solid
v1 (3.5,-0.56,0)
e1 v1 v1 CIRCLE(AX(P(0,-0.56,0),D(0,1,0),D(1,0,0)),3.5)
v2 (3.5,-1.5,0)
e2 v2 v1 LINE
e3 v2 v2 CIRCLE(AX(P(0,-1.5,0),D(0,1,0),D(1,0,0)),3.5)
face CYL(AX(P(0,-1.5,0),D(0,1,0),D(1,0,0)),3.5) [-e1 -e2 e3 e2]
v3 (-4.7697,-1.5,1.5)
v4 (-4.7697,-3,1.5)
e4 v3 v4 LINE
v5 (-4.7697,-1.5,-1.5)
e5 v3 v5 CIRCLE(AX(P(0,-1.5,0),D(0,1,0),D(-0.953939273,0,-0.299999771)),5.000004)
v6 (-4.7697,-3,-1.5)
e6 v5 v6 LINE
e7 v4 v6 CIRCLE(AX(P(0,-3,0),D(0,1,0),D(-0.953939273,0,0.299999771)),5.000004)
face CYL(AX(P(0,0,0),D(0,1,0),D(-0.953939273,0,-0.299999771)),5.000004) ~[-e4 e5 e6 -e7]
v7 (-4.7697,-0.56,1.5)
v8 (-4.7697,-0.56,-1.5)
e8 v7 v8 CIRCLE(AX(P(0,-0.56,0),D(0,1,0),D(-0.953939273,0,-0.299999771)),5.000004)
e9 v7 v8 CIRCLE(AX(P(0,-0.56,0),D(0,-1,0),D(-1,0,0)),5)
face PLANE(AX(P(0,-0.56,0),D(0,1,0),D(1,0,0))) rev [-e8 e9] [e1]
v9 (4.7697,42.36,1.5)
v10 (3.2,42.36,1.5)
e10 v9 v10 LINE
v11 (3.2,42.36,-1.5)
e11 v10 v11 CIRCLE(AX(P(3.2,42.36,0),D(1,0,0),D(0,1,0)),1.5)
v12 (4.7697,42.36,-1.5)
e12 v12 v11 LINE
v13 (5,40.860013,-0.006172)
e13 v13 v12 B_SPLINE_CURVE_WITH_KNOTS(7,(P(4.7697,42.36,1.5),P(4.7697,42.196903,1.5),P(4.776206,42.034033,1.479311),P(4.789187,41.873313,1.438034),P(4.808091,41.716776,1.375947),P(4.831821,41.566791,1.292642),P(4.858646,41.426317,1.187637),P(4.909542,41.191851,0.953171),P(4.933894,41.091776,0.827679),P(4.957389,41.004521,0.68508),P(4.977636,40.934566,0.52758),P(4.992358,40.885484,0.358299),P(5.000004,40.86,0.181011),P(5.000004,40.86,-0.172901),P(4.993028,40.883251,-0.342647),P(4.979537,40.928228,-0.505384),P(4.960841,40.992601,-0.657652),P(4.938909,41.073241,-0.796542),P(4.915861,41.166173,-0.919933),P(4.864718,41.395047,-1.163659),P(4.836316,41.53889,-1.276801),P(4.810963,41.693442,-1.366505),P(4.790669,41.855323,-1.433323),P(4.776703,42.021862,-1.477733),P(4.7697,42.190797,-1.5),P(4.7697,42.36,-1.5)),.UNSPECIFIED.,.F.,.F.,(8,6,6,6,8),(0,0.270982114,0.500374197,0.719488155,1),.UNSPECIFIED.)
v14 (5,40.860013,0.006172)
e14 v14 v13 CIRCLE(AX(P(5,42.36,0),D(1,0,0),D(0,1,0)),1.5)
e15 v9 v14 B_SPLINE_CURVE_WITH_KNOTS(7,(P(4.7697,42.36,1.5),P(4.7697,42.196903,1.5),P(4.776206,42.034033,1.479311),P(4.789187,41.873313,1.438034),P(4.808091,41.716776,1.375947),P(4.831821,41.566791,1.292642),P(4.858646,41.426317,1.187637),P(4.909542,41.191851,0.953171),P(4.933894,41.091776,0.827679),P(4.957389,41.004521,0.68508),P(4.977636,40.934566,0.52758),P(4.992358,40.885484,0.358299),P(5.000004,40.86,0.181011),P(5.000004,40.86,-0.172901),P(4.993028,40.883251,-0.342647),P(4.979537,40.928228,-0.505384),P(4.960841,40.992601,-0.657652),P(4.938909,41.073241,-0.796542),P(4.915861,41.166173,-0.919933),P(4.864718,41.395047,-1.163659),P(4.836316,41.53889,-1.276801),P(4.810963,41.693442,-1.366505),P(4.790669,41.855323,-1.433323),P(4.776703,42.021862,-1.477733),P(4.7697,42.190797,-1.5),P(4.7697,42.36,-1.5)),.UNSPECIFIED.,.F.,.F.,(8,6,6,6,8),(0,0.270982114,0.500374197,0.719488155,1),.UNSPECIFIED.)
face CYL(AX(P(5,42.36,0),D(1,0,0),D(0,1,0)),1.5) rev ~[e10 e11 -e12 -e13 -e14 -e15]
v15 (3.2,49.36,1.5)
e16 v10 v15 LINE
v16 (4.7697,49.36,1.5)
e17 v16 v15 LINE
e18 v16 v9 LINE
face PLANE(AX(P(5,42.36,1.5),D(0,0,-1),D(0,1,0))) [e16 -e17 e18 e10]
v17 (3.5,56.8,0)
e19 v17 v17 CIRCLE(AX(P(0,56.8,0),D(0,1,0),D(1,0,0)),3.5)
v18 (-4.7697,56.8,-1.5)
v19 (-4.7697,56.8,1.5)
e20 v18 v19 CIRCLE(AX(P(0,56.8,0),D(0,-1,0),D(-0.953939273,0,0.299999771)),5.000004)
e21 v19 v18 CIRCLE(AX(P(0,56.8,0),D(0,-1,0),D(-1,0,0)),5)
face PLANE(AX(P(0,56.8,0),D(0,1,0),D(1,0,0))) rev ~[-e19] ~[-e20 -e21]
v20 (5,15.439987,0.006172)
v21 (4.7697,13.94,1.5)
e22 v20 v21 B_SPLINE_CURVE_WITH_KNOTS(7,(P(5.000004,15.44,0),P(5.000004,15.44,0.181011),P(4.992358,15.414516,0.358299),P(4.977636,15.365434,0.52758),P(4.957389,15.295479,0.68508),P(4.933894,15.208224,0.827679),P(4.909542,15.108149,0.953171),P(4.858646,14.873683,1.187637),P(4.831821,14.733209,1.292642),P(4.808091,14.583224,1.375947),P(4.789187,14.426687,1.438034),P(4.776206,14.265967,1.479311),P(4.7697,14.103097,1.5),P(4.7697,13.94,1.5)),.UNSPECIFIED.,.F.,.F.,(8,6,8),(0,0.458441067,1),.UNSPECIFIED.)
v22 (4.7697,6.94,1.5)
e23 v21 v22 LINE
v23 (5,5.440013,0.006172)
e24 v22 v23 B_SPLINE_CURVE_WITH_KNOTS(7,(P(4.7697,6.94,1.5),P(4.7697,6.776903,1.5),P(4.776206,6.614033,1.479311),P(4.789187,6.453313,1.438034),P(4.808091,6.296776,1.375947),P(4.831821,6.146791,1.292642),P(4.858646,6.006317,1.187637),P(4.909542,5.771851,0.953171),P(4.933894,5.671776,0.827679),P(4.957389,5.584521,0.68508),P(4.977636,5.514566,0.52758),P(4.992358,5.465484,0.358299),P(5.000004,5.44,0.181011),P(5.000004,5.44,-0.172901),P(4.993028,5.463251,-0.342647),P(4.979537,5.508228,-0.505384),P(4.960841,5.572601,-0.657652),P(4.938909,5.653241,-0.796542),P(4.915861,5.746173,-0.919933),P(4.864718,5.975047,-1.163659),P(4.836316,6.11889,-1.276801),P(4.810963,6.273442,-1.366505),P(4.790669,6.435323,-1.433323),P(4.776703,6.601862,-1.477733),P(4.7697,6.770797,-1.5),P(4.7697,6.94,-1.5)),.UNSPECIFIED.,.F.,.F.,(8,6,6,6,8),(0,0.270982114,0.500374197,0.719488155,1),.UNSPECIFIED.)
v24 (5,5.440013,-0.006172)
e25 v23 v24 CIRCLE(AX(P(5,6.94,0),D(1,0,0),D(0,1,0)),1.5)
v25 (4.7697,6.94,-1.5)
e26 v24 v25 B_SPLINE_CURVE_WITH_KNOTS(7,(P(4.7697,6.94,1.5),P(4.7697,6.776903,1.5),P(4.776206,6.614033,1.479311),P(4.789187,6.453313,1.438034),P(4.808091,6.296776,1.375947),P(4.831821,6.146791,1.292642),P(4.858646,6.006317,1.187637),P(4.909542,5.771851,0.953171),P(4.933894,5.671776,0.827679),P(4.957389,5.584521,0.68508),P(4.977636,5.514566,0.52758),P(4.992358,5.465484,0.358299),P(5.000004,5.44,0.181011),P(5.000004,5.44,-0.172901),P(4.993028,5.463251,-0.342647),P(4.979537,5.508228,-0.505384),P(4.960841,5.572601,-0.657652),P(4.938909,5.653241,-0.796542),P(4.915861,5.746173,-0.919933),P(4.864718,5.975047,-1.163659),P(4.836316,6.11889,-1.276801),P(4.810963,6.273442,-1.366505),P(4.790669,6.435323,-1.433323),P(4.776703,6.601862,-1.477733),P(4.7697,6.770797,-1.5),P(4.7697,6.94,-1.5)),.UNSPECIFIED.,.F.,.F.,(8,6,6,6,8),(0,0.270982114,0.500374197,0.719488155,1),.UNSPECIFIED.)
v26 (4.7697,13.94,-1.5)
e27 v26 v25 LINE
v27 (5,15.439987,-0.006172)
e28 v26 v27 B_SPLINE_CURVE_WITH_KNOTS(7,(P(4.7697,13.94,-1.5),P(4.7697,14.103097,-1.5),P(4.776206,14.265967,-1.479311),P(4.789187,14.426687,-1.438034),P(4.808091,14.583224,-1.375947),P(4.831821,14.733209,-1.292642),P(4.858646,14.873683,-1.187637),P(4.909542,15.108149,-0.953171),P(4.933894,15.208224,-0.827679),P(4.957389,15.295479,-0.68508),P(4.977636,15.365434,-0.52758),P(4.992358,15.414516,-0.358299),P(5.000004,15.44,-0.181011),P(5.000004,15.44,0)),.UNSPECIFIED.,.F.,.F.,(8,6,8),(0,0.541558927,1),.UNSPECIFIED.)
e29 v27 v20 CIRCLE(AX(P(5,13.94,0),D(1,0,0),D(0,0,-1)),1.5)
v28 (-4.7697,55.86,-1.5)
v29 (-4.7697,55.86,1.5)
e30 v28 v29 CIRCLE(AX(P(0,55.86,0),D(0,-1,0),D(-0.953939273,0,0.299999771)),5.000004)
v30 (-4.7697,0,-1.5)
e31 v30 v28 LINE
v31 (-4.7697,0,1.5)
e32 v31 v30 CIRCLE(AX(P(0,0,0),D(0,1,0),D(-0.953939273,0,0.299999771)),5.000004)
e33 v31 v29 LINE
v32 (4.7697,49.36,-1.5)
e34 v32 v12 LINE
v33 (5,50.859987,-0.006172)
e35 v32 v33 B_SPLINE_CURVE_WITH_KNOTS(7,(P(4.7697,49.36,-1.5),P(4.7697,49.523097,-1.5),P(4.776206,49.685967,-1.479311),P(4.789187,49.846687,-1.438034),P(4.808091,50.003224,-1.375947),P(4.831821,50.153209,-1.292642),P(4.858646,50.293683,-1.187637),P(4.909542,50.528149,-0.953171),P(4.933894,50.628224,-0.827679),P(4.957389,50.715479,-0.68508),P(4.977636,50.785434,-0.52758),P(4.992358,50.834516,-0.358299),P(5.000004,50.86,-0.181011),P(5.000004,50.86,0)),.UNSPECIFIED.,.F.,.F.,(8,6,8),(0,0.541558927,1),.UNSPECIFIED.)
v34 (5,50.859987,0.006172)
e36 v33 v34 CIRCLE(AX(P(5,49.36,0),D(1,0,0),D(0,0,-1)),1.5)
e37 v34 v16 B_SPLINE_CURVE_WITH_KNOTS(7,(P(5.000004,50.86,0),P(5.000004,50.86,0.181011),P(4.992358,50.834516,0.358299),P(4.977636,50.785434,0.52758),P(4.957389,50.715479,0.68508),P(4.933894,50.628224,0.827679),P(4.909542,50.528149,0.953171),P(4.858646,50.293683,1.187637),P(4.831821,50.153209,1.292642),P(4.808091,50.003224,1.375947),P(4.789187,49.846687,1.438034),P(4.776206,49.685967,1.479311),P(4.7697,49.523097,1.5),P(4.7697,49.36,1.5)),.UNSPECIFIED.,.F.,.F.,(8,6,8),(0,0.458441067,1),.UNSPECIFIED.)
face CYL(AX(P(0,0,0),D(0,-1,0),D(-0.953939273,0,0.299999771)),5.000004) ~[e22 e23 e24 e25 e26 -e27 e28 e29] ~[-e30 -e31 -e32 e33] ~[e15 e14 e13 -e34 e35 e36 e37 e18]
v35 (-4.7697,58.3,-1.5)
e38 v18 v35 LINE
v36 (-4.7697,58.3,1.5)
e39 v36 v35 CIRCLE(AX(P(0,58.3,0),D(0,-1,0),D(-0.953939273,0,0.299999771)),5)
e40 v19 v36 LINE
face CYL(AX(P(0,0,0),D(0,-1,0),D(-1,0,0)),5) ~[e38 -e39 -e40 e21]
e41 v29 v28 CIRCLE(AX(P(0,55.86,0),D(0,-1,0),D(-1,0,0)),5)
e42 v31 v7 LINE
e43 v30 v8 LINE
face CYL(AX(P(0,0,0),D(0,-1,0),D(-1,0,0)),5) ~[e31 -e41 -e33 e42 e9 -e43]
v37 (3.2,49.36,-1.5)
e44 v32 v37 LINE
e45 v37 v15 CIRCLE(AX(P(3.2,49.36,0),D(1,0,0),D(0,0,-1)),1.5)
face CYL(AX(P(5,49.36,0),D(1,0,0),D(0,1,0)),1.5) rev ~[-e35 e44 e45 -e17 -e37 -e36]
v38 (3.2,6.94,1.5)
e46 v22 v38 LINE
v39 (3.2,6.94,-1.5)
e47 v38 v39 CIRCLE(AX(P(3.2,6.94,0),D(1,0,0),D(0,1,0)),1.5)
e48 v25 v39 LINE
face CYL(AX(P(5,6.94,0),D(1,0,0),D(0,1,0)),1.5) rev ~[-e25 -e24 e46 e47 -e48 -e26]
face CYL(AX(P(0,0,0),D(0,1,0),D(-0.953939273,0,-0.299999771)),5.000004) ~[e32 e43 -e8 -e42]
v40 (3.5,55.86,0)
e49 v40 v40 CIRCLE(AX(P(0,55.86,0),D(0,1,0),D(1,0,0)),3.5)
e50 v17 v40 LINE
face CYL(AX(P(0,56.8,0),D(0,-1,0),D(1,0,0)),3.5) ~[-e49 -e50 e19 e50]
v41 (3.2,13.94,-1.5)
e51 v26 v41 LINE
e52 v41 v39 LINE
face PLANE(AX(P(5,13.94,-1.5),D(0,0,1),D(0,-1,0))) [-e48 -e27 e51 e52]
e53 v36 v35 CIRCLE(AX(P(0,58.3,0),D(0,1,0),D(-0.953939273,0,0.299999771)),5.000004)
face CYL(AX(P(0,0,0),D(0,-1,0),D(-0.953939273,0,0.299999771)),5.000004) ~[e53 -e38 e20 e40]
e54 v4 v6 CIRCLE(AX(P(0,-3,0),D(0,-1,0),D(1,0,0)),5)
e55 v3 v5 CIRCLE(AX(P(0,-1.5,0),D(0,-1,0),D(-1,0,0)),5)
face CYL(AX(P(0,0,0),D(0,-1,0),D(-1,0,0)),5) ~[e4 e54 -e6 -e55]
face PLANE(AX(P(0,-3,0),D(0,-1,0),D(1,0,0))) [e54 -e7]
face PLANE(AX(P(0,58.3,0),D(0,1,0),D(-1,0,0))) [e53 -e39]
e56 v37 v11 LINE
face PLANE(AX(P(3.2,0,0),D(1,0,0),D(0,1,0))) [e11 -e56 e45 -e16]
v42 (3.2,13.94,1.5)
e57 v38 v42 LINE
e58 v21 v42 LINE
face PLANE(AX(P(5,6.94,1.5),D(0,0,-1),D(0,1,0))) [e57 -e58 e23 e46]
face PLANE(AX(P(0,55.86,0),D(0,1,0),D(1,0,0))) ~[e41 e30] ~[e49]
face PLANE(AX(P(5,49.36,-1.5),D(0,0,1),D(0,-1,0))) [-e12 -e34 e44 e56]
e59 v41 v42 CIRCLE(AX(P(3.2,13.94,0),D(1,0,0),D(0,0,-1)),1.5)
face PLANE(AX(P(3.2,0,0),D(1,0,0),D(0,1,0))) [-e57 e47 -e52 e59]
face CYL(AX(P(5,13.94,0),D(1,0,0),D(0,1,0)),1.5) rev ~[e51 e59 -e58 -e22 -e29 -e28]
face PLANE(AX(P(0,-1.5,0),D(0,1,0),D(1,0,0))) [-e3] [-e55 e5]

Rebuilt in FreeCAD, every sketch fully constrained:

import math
import FreeCAD as App
import Part
import Sketcher
from FreeCAD import Vector
Q = App.Units.Quantity


def add_polygon(sketch, points):
    """Adds a closed chain of lines whose ends are joined by coincident constraints."""
    first, n = sketch.GeometryCount, len(points)
    for a, b in zip(points, points[1:] + points[:1]):
        sketch.addGeometry(Part.LineSegment(App.Vector(*a, 0), App.Vector(*b, 0)), False)
    for i in range(n):
        sketch.addConstraint(Sketcher.Constraint("Coincident", first + i, 2, first + (i + 1) % n, 1))

doc = App.newDocument("Part")
body = doc.addObject("PartDesign::Body", "Body")

# Sketch on XZ plane
sketch1 = body.newObject("Sketcher::SketchObject", "Sketch")
sketch1.AttachmentSupport = (doc.getObject("XZ_Plane"), [""])
sketch1.MapMode = "FlatFace"
sketch1.addGeometry(Part.Circle(Vector(0, 0, 0), Vector(0, 0, 1), 5), False)
sketch1.addConstraint([
    Sketcher.Constraint("Coincident", 0, 3, -1, 1),
    Sketcher.Constraint("Diameter", 0, Q("10 mm")),
])
pad1 = body.newObject("PartDesign::Pad", "Pad")
pad1.Profile = sketch1
pad1.Length = 58.3
pad1.Reversed = True

# Sketch on XZ plane
sketch2 = body.newObject("Sketcher::SketchObject", "Sketch001")
sketch2.AttachmentSupport = (doc.getObject("XZ_Plane"), [""])
sketch2.MapMode = "FlatFace"
sketch2.addGeometry(Part.Circle(Vector(0, 0, 0), Vector(0, 0, 1), 5), False)
sketch2.addConstraint([
    Sketcher.Constraint("Coincident", 0, 3, -1, 1),
    Sketcher.Constraint("Diameter", 0, Q("10 mm")),
])
pad2 = body.newObject("PartDesign::Pad", "Pad001")
pad2.Profile = sketch2
pad2.Length = 3

# Sketch on XY plane
sketch3 = body.newObject("Sketcher::SketchObject", "Sketch002")
sketch3.AttachmentSupport = (doc.getObject("XY_Plane"), [""])
sketch3.MapMode = "FlatFace"
add_polygon(sketch3, [(3.5, 55.9), (7.5, 55.9), (7.5, 56.8), (3.5, 56.8)])  # lines 0-3
add_polygon(sketch3, [(7.5, -1.5), (7.5, -0.6), (3.5, -0.6), (3.5, -1.5)])  # lines 4-7
sketch3.addConstraint([
    Sketcher.Constraint("Horizontal", 0),
    Sketcher.Constraint("Vertical", 1),
    Sketcher.Constraint("Horizontal", 2),
    Sketcher.Constraint("Vertical", 3),
    Sketcher.Constraint("Vertical", 4),
    Sketcher.Constraint("Horizontal", 5),
    Sketcher.Constraint("Vertical", 6),
    Sketcher.Constraint("Horizontal", 7),
    Sketcher.Constraint("Vertical", 1, 2, 4, 2),
    Sketcher.Constraint("Vertical", 3, 2, 5, 2),
    Sketcher.Constraint("Equal", 3, 4),
    Sketcher.Constraint("DistanceX", 0, 1, 0, 2, Q("4 mm")),
    Sketcher.Constraint("DistanceY", 1, 1, 1, 2, Q("0.94 mm")),
    Sketcher.Constraint("DistanceY", 6, 2, -1, 1, Q("1.5 mm")),
    Sketcher.Constraint("DistanceX", -1, 1, 0, 2, Q("7.5 mm")),
    Sketcher.Constraint("DistanceY", -1, 1, 1, 2, Q("56.8 mm")),
])
groove = body.newObject("PartDesign::Groove", "Groove")
groove.Profile = sketch3
groove.ReferenceAxis = (sketch3, ["V_Axis"])
groove.Angle = 360

# Sketch on YZ plane
sketch4 = body.newObject("Sketcher::SketchObject", "Sketch003")
sketch4.AttachmentSupport = (doc.getObject("YZ_Plane"), [""])
sketch4.MapMode = "FlatFace"
sketch4.AttachmentOffset = App.Placement(Vector(0, 0, 5), App.Rotation())
sketch4.addGeometry([
    Part.LineSegment(Vector(13.9, 1.5, 0), Vector(6.9, 1.5, 0)),  # 0
    Part.ArcOfCircle(Part.Circle(Vector(6.9, 0, 0), Vector(0, 0, 1), 1.5), math.radians(90), math.radians(270)),  # 1
    Part.LineSegment(Vector(6.9, -1.5, 0), Vector(13.9, -1.5, 0)),  # 2
    Part.ArcOfCircle(Part.Circle(Vector(13.9, 0, 0), Vector(0, 0, 1), 1.5), math.radians(-90), math.radians(90)),  # 3
    Part.LineSegment(Vector(49.4, 1.5, 0), Vector(42.4, 1.5, 0)),  # 4
    Part.ArcOfCircle(Part.Circle(Vector(42.4, 0, 0), Vector(0, 0, 1), 1.5), math.radians(90), math.radians(270)),  # 5
    Part.LineSegment(Vector(42.4, -1.5, 0), Vector(49.4, -1.5, 0)),  # 6
    Part.ArcOfCircle(Part.Circle(Vector(49.4, 0, 0), Vector(0, 0, 1), 1.5), math.radians(-90), math.radians(90)),  # 7
], False)
sketch4.addConstraint([
    Sketcher.Constraint("Tangent", 0, 2, 1, 1),
    Sketcher.Constraint("Tangent", 1, 2, 2, 1),
    Sketcher.Constraint("Tangent", 2, 2, 3, 1),
    Sketcher.Constraint("Tangent", 3, 2, 0, 1),
    Sketcher.Constraint("Tangent", 4, 2, 5, 1),
    Sketcher.Constraint("Tangent", 5, 2, 6, 1),
    Sketcher.Constraint("Tangent", 6, 2, 7, 1),
    Sketcher.Constraint("Tangent", 7, 2, 4, 1),
    Sketcher.Constraint("Horizontal", 0),
    Sketcher.Constraint("Horizontal", 2),
    Sketcher.Constraint("Horizontal", 4),
    Sketcher.Constraint("Horizontal", 6),
    Sketcher.Constraint("Equal", 3, 5),
    Sketcher.Constraint("PointOnObject", 1, 3, -1),
    Sketcher.Constraint("PointOnObject", 5, 3, -1),
    Sketcher.Constraint("Equal", 2, 4),
    Sketcher.Constraint("Radius", 1, Q("1.5 mm")),
    Sketcher.Constraint("DistanceX", 0, 2, 0, 1, Q("7 mm")),
    Sketcher.Constraint("DistanceX", -1, 1, 1, 3, Q("6.94 mm")),
    Sketcher.Constraint("DistanceX", -1, 1, 5, 3, Q("42.36 mm")),
])
pocket1 = body.newObject("PartDesign::Pocket", "Pocket")
pocket1.Profile = sketch4
pocket1.Length = 1.8

doc.recompute()
